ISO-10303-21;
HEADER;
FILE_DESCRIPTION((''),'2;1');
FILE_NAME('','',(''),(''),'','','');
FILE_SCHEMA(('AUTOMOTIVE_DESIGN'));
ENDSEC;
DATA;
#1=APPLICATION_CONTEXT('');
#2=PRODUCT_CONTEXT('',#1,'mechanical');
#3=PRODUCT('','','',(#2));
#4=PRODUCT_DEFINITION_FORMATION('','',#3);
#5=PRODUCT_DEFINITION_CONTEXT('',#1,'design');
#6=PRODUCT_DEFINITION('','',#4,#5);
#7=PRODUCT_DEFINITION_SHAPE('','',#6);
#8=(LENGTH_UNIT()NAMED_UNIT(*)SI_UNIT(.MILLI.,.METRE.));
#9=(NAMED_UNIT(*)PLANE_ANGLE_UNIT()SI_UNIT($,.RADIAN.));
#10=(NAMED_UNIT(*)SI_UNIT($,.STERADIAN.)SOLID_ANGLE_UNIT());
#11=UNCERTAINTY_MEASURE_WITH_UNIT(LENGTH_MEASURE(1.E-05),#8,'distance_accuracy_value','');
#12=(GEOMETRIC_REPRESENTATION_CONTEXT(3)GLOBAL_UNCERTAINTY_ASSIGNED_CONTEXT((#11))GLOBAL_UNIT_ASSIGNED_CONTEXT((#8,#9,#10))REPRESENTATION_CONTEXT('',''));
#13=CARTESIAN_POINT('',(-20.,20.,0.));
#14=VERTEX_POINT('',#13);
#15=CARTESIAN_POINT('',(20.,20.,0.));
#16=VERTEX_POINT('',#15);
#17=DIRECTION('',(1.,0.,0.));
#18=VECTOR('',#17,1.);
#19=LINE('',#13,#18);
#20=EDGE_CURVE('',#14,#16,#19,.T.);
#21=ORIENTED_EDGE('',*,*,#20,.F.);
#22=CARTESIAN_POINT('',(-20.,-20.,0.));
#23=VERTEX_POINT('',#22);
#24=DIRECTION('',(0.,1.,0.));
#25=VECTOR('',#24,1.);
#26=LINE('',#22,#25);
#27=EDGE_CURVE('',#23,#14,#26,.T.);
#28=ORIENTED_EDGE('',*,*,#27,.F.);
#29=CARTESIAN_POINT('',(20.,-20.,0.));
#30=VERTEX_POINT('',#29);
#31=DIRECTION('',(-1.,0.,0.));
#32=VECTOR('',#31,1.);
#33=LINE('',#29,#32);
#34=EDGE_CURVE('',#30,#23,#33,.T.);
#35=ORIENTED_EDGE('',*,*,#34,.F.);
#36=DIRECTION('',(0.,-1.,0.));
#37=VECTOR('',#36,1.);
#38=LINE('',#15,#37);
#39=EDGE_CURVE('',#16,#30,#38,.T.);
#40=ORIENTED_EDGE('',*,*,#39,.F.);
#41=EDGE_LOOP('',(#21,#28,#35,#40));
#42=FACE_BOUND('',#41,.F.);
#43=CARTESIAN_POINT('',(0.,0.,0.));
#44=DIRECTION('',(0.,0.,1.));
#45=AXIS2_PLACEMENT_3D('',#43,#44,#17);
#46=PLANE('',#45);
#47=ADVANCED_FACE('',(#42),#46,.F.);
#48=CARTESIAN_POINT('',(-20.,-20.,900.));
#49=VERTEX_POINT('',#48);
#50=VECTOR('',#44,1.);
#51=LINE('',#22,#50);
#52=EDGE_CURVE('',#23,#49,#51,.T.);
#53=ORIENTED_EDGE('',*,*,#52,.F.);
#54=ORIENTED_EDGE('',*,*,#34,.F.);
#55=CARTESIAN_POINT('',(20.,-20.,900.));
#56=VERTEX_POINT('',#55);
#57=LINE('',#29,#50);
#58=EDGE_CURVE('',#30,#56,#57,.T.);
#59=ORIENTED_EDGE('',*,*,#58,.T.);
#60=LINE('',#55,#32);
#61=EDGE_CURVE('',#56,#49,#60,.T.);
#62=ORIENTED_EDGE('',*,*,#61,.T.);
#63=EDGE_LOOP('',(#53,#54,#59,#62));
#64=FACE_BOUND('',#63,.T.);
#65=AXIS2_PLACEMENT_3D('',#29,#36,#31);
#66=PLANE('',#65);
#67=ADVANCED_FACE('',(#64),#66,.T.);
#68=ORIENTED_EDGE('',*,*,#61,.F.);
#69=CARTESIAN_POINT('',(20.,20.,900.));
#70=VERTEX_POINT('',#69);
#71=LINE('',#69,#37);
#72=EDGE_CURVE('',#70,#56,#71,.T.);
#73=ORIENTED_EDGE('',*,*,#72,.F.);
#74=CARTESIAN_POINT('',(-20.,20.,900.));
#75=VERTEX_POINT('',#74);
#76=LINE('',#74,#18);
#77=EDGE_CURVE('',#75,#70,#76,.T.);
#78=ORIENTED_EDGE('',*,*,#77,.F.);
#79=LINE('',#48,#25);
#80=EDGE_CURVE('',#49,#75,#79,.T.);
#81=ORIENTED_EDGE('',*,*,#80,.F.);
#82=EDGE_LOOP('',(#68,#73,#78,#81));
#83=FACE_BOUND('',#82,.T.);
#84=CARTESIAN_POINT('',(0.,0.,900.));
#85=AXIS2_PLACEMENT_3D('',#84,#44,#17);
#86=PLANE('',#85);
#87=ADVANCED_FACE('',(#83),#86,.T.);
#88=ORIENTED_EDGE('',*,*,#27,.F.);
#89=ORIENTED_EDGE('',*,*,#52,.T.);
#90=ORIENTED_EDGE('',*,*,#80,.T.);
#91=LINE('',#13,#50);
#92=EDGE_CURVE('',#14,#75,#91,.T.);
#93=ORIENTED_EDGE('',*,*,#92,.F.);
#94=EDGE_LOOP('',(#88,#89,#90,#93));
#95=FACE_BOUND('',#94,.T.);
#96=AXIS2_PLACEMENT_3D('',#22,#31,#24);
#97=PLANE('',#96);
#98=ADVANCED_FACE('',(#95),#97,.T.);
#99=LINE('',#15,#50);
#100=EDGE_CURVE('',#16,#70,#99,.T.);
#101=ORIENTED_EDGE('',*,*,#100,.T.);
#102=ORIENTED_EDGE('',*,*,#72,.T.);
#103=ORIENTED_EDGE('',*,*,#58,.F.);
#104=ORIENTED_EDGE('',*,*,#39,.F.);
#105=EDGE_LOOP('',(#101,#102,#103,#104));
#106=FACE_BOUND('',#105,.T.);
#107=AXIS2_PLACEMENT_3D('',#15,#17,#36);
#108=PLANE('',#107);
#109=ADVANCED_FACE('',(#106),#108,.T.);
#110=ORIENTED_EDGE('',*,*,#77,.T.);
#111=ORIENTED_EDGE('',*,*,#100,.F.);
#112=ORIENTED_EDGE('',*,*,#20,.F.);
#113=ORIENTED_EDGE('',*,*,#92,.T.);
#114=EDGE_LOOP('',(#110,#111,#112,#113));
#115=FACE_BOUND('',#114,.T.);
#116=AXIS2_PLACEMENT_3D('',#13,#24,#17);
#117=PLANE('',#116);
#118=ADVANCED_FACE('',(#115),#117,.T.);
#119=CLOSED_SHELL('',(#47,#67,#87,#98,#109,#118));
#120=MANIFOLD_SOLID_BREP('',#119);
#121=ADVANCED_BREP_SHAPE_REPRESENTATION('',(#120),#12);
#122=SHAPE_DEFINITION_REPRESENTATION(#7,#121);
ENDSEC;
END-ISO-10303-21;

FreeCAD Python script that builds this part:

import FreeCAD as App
import Part
import Sketcher
from FreeCAD import Vector
Q = App.Units.Quantity


def add_polygon(sketch, points):
    """Adds a closed chain of lines whose ends are joined by coincident constraints."""
    first, n = sketch.GeometryCount, len(points)
    for a, b in zip(points, points[1:] + points[:1]):
        sketch.addGeometry(Part.LineSegment(App.Vector(*a, 0), App.Vector(*b, 0)), False)
    for i in range(n):
        sketch.addConstraint(Sketcher.Constraint("Coincident", first + i, 2, first + (i + 1) % n, 1))

doc = App.newDocument("Part")
body = doc.addObject("PartDesign::Body", "Body")

# Sketch on XY plane
sketch1 = body.newObject("Sketcher::SketchObject", "Sketch")
sketch1.AttachmentSupport = (doc.getObject("XY_Plane"), [""])
sketch1.MapMode = "FlatFace"
add_polygon(sketch1, [(20, 20), (-20, 20), (-20, -20), (20, -20)])  # lines 0-3
sketch1.addConstraint(Sketcher.Constraint("Horizontal", 0))
sketch1.addConstraint(Sketcher.Constraint("Vertical", 1))
sketch1.addConstraint(Sketcher.Constraint("Horizontal", 2))
sketch1.addConstraint(Sketcher.Constraint("Vertical", 3))
sketch1.addConstraint(Sketcher.Constraint("Symmetric", 0, 2, 2, 2, -1, 1))
sketch1.addConstraint(Sketcher.Constraint("Equal", 2, 1))
sketch1.addConstraint(Sketcher.Constraint("DistanceX", 0, 2, 0, 1, Q("40 mm")))
pad1 = body.newObject("PartDesign::Pad", "Pad")
pad1.Profile = sketch1
pad1.Length = 900

doc.recompute()
